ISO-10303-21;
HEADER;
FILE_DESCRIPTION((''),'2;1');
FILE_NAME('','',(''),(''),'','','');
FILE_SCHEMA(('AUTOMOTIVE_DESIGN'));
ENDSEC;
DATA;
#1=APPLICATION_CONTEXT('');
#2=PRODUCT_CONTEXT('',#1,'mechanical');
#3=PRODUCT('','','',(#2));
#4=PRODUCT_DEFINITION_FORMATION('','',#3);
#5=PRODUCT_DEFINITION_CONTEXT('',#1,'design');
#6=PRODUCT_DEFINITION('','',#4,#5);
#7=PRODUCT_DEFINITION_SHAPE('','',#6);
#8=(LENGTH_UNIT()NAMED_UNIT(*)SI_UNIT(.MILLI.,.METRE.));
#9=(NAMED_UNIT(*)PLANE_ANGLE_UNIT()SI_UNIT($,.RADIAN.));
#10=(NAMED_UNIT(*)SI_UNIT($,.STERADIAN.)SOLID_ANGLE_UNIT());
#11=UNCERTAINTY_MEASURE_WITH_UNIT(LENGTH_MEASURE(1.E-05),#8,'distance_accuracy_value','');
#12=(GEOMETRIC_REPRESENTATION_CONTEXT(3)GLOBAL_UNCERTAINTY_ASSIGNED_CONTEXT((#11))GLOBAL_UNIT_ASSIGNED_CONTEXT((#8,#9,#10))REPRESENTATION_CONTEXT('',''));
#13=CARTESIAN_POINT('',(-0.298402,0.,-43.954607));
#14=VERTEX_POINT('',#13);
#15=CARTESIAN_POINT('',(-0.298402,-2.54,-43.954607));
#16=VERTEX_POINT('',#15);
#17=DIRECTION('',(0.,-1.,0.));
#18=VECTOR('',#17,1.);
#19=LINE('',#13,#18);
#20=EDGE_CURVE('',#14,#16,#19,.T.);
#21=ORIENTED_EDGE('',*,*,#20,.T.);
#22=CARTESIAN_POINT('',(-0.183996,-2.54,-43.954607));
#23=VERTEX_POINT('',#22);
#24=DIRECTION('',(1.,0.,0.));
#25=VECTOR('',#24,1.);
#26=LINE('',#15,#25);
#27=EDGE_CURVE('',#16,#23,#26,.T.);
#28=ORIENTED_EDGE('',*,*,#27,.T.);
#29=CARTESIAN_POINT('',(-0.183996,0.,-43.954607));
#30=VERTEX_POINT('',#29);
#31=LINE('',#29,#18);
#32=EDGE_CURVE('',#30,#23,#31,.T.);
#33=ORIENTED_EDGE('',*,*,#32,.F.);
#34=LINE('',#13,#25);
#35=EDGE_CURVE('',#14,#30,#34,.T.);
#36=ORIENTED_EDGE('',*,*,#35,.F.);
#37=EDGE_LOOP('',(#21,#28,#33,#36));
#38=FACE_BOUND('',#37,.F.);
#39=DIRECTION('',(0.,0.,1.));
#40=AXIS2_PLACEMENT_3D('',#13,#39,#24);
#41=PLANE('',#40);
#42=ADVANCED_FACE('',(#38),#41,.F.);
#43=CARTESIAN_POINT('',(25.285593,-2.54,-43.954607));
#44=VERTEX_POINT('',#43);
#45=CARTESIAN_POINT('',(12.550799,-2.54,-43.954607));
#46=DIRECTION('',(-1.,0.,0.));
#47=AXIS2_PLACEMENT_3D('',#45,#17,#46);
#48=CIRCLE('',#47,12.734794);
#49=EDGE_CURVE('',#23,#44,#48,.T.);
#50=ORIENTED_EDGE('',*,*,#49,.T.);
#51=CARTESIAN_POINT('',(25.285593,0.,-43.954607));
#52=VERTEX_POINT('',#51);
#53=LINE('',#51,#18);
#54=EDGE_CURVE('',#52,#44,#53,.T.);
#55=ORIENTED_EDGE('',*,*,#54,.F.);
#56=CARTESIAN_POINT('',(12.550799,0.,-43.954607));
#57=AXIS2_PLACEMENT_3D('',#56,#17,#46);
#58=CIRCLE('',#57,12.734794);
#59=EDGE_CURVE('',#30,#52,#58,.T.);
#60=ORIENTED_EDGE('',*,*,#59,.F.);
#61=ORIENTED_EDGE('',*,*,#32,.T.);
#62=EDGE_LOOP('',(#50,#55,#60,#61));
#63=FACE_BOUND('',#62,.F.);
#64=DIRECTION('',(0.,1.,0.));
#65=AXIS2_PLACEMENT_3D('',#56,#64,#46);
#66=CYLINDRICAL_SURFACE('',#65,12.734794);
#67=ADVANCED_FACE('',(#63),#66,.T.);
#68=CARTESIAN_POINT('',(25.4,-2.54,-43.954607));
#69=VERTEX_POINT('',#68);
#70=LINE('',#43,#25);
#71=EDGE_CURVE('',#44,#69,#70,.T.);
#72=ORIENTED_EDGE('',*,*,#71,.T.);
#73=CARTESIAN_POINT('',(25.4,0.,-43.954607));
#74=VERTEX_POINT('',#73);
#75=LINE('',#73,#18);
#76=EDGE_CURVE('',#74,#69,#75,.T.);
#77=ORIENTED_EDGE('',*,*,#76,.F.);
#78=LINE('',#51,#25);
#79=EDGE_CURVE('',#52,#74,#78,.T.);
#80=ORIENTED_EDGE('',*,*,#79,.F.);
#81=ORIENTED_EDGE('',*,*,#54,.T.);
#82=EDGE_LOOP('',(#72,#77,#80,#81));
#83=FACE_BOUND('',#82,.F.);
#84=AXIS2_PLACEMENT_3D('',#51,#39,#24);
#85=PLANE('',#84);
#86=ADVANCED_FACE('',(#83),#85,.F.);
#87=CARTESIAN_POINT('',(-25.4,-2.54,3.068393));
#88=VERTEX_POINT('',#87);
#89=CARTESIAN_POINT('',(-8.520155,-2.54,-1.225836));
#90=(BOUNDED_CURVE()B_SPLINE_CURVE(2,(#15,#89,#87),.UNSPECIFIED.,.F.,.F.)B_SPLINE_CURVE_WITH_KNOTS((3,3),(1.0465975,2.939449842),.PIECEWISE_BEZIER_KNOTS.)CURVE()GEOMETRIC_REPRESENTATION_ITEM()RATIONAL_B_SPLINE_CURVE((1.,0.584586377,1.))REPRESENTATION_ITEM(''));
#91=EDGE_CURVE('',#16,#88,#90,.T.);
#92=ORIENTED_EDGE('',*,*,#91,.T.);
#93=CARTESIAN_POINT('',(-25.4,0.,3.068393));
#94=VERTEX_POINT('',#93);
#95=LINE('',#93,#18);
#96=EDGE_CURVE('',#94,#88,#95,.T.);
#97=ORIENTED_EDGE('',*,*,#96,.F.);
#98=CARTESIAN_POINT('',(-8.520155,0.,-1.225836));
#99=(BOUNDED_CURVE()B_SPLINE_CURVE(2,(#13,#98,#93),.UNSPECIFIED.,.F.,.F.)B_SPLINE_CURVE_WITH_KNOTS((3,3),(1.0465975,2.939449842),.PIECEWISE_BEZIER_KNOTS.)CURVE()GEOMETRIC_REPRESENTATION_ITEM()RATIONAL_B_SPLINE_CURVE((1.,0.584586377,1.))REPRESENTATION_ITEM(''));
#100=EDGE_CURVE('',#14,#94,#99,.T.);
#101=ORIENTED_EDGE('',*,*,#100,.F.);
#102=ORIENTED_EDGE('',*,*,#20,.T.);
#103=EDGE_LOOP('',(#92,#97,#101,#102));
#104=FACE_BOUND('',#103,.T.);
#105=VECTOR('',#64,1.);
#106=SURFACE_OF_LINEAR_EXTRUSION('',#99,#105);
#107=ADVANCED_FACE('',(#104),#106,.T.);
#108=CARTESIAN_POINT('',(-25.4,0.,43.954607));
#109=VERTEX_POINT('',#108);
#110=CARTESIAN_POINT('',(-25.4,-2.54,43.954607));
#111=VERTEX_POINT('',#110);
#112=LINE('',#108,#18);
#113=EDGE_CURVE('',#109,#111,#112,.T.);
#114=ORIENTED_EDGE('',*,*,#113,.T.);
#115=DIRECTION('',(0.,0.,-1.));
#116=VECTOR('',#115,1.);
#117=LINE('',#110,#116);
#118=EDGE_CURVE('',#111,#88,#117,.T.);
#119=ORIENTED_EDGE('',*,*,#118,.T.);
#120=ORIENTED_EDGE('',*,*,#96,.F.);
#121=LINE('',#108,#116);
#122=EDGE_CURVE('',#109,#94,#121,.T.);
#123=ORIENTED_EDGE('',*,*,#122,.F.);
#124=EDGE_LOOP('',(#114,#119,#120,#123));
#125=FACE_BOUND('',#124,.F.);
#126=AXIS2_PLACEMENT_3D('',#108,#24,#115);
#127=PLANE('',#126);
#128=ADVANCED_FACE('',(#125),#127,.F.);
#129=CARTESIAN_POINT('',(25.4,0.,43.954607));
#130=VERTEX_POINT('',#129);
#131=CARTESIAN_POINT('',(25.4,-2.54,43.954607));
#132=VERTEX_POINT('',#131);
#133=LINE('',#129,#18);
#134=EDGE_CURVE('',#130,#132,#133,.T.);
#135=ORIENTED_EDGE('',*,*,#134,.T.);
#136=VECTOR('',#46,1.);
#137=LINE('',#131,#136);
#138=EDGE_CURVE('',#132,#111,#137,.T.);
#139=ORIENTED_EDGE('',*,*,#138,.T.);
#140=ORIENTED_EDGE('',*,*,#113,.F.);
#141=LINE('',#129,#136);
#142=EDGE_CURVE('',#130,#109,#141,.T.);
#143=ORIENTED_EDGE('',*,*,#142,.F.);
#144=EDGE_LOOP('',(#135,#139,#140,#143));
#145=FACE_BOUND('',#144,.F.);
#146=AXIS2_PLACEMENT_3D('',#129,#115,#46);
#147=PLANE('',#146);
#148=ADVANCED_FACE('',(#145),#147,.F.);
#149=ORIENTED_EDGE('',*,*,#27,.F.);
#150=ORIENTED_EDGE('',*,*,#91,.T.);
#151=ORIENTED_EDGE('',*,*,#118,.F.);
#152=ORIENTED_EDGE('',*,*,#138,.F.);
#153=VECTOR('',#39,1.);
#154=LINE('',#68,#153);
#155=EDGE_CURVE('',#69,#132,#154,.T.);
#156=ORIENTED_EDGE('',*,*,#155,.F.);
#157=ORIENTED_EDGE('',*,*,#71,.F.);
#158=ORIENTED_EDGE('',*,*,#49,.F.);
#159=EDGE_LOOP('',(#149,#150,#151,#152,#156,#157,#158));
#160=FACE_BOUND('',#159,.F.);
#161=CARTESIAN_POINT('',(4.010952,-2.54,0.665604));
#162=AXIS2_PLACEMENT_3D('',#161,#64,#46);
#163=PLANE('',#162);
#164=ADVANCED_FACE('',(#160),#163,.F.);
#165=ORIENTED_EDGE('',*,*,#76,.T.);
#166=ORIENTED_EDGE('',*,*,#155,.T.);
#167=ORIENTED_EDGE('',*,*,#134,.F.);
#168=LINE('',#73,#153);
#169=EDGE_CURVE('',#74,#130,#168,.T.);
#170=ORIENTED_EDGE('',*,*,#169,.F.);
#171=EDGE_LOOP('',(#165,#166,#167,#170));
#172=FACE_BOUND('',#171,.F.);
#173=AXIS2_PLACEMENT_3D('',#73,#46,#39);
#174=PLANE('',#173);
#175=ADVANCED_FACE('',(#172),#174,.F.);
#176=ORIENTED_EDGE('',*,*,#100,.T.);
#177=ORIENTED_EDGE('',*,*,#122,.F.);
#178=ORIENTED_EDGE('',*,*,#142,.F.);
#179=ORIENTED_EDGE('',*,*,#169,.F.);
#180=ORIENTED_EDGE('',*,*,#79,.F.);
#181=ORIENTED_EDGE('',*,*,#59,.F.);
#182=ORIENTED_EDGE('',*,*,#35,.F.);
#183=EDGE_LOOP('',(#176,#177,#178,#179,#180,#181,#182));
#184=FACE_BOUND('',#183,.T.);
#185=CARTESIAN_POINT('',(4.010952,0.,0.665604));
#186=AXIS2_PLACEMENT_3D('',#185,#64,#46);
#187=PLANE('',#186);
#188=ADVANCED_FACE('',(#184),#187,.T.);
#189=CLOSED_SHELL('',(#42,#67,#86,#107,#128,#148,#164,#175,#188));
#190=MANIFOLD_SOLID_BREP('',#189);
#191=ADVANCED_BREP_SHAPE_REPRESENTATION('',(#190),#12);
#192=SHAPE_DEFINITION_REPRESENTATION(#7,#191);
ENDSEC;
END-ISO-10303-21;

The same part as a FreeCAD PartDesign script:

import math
import FreeCAD as App
import Part
import Sketcher
Q = App.Units.Quantity

doc = App.newDocument("Part")
params = doc.addObject("Spreadsheet::Sheet", "Params")
for row, (alias, value) in enumerate([
    ("pad1_length", "0.1 in"),
], start=1):
    params.set(f"A{row}", alias)
    params.set(f"B{row}", "=" + value)
    params.setAlias(f"B{row}", alias)

body = doc.addObject("PartDesign::Body", "Body")

sketch1 = body.newObject("Sketcher::SketchObject", "Sketch")
sketch1.AttachmentSupport = (doc.getObject("XZ_Plane"), [""])
sketch1.MapMode = "FlatFace"
sketch1.addGeometry(Part.BSplineCurve([App.Vector(-0.298402, -43.954607, 0), App.Vector(-8.520155, -1.225836, 0), App.Vector(-25.4, 3.068393, 0)], [3, 3], [1.0465975, 2.939449842], False, 2, [1, 0.584586377, 1], False), False)
sketch1.addGeometry(Part.LineSegment(App.Vector(-0.298402, -43.954607, 0), App.Vector(-0.183996, -43.954607, 0)), False)
sketch1.addGeometry(Part.ArcOfCircle(Part.Circle(App.Vector(12.550799, -43.954607, 0), App.Vector(0, 0, 1), 12.734794), math.radians(180), math.radians(360)), False)
sketch1.addGeometry(Part.LineSegment(App.Vector(25.285593, -43.954607, 0), App.Vector(25.4, -43.954607, 0)), False)
sketch1.addGeometry(Part.LineSegment(App.Vector(25.4, -43.954607, 0), App.Vector(25.4, 43.954607, 0)), False)
sketch1.addGeometry(Part.LineSegment(App.Vector(25.4, 43.954607, 0), App.Vector(-25.4, 43.954607, 0)), False)
sketch1.addGeometry(Part.LineSegment(App.Vector(-25.4, 43.954607, 0), App.Vector(-25.4, 3.068393, 0)), False)
sketch1.addConstraint(Sketcher.Constraint("Block", 0))
sketch1.addConstraint(Sketcher.Constraint("Coincident", 0, 1, 1, 1))
sketch1.addConstraint(Sketcher.Constraint("Coincident", 1, 2, 2, 1))
sketch1.addConstraint(Sketcher.Constraint("Coincident", 2, 2, 3, 1))
sketch1.addConstraint(Sketcher.Constraint("Coincident", 3, 2, 4, 1))
sketch1.addConstraint(Sketcher.Constraint("Coincident", 4, 2, 5, 1))
sketch1.addConstraint(Sketcher.Constraint("Coincident", 5, 2, 6, 1))
sketch1.addConstraint(Sketcher.Constraint("Coincident", 6, 2, 0, 2))
sketch1.addConstraint(Sketcher.Constraint("Horizontal", 1))
sketch1.addConstraint(Sketcher.Constraint("Horizontal", 3))
sketch1.addConstraint(Sketcher.Constraint("Vertical", 4))
sketch1.addConstraint(Sketcher.Constraint("Horizontal", 5))
sketch1.addConstraint(Sketcher.Constraint("Vertical", 6))
sketch1.addConstraint(Sketcher.Constraint("Symmetric", 3, 2, 5, 2, -1, 1))
sketch1.addConstraint(Sketcher.Constraint("Horizontal", 2, 3, 1, 2))
sketch1.addConstraint(Sketcher.Constraint("Horizontal", 1, 2, 2, 2))
sketch1.addConstraint(Sketcher.Constraint("Equal", 1, 3))
sketch1.addConstraint(Sketcher.Constraint("Radius", 2, Q("12.734794 mm")))
pad1 = body.newObject("PartDesign::Pad", "Pad")
pad1.Profile = sketch1
pad1.setExpression("Length", "Params.pad1_length")

doc.recompute()
